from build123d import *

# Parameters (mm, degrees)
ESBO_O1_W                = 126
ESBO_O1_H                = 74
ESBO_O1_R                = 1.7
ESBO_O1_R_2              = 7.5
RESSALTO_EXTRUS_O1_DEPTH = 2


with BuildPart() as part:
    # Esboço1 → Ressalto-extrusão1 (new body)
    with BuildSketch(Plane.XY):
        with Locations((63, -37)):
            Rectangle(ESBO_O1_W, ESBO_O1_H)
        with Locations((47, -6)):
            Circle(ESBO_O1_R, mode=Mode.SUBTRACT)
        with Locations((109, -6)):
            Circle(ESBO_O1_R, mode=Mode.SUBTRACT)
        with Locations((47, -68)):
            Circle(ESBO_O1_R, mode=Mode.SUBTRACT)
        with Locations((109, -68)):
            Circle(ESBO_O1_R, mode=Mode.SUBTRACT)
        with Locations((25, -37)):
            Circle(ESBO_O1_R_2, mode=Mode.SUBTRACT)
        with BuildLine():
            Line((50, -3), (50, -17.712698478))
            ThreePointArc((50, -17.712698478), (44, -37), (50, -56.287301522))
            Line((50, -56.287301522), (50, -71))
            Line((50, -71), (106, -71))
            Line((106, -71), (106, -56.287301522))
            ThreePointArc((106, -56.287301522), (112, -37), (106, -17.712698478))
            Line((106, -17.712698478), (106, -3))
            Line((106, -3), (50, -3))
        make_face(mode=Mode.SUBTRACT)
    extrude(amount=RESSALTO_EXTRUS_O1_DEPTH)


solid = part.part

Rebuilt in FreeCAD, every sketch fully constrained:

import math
import FreeCAD as App
import Part
import Sketcher
from FreeCAD import Vector


def add_polygon(sketch, points):
    """Adds a closed chain of lines whose ends are joined by coincident constraints."""
    first, n = sketch.GeometryCount, len(points)
    for a, b in zip(points, points[1:] + points[:1]):
        sketch.addGeometry(Part.LineSegment(App.Vector(*a, 0), App.Vector(*b, 0)), False)
    for i in range(n):
        sketch.addConstraint(Sketcher.Constraint("Coincident", first + i, 2, first + (i + 1) % n, 1))

doc = App.newDocument("Part")
params = doc.addObject("Spreadsheet::Sheet", "Params")
for row, (alias, value) in enumerate([
    ("sketch1_diameter", "15 mm"),
    ("sketch1_radius", "34 mm"),
    ("sketch1_diameter2", "3.4 mm"),
    ("sketch1_width", "126 mm"),
    ("sketch1_width2", "56 mm"),
    ("pad1_length", "2 mm"),
], start=1):
    params.set(f"A{row}", alias)
    params.set(f"B{row}", "=" + value)
    params.setAlias(f"B{row}", alias)

body = doc.addObject("PartDesign::Body", "Body")

sketch1 = doc.addObject("Sketcher::SketchObject", "Sketch")
body.addObject(sketch1)
sketch1.AttachmentSupport = (doc.XY_Plane, [""])
sketch1.MapMode = "FlatFace"
add_polygon(sketch1, [(0, 0), (0, -74), (126, -74), (126, 0)])
sketch1.addGeometry(Part.Circle(Vector(47, -68, 0), Vector(0, 0, 1), 1.7), False)
sketch1.addGeometry(Part.Circle(Vector(109, -68, 0), Vector(0, 0, 1), 1.7), False)
sketch1.addGeometry(Part.Circle(Vector(25, -37, 0), Vector(0, 0, 1), 7.5), False)
sketch1.addGeometry(Part.Circle(Vector(47, -6, 0), Vector(0, 0, 1), 1.7), False)
sketch1.addGeometry(Part.LineSegment(Vector(50, -17.712698, 0), Vector(50, -3, 0)), False)
sketch1.addGeometry(Part.LineSegment(Vector(50, -3, 0), Vector(106, -3, 0)), False)
sketch1.addGeometry(Part.LineSegment(Vector(106, -3, 0), Vector(106, -17.712698, 0)), False)
sketch1.addGeometry(Part.ArcOfCircle(Part.Circle(Vector(78, -37, 0), Vector(0, 0, 1), 34), math.radians(-34.560322), math.radians(34.560322)), False)
sketch1.addGeometry(Part.LineSegment(Vector(106, -56.287302, 0), Vector(106, -71, 0)), False)
sketch1.addGeometry(Part.LineSegment(Vector(106, -71, 0), Vector(50, -71, 0)), False)
sketch1.addGeometry(Part.LineSegment(Vector(50, -71, 0), Vector(50, -56.287302, 0)), False)
sketch1.addGeometry(Part.ArcOfCircle(Part.Circle(Vector(78, -37, 0), Vector(0, 0, 1), 34), math.radians(145.439678), math.radians(214.560322)), False)
sketch1.addGeometry(Part.Circle(Vector(109, -6, 0), Vector(0, 0, 1), 1.7), False)
sketch1.addConstraint(Sketcher.Constraint("Coincident", 8, 2, 9, 1))
sketch1.addConstraint(Sketcher.Constraint("Coincident", 9, 2, 10, 1))
sketch1.addConstraint(Sketcher.Constraint("Coincident", 10, 2, 11, 2))
sketch1.addConstraint(Sketcher.Constraint("Coincident", 11, 1, 12, 1))
sketch1.addConstraint(Sketcher.Constraint("Coincident", 12, 2, 13, 1))
sketch1.addConstraint(Sketcher.Constraint("Coincident", 13, 2, 14, 1))
sketch1.addConstraint(Sketcher.Constraint("Coincident", 14, 2, 15, 2))
sketch1.addConstraint(Sketcher.Constraint("Coincident", 15, 1, 8, 1))
sketch1.addConstraint(Sketcher.Constraint("Vertical", 0))
sketch1.addConstraint(Sketcher.Constraint("Horizontal", 1))
sketch1.addConstraint(Sketcher.Constraint("Vertical", 2))
sketch1.addConstraint(Sketcher.Constraint("Horizontal", 3))
sketch1.addConstraint(Sketcher.Constraint("Vertical", 8))
sketch1.addConstraint(Sketcher.Constraint("Horizontal", 9))
sketch1.addConstraint(Sketcher.Constraint("Vertical", 10))
sketch1.addConstraint(Sketcher.Constraint("Vertical", 12))
sketch1.addConstraint(Sketcher.Constraint("Horizontal", 13))
sketch1.addConstraint(Sketcher.Constraint("Vertical", 14))
sketch1.addConstraint(Sketcher.Constraint("Coincident", 3, 2, -1, 1))
sketch1.addConstraint(Sketcher.Constraint("Coincident", 15, 3, 11, 3))
sketch1.addConstraint(Sketcher.Constraint("Equal", 4, 5))
sketch1.addConstraint(Sketcher.Constraint("Equal", 5, 7))
sketch1.addConstraint(Sketcher.Constraint("Equal", 11, 15))
sketch1.addConstraint(Sketcher.Constraint("Equal", 7, 16))
sketch1.addConstraint(Sketcher.Constraint("Horizontal", 4, 3, 5, 3))
sketch1.addConstraint(Sketcher.Constraint("Horizontal", 6, 3, 11, 3))
sketch1.addConstraint(Sketcher.Constraint("Horizontal", 7, 3, 16, 3))
sketch1.addConstraint(Sketcher.Constraint("Horizontal", 11, 1, 14, 2))
sketch1.addConstraint(Sketcher.Constraint("Horizontal", 10, 2, 15, 1))
sketch1.addConstraint(Sketcher.Constraint("Vertical", 4, 3, 7, 3))
sketch1.addConstraint(Sketcher.Constraint("Vertical", 5, 3, 16, 3))
sketch1.addConstraint(Sketcher.Constraint("Vertical", 10, 2, 11, 1))
sketch1.addConstraint(Sketcher.Constraint("Equal", 10, 12))
sketch1.addConstraint(Sketcher.Constraint("Diameter", 6, 15.0))
sketch1.addConstraint(Sketcher.Constraint("Radius", 11, 34.0))
sketch1.addConstraint(Sketcher.Constraint("Diameter", 4, 3.4))
sketch1.addConstraint(Sketcher.Constraint("DistanceX", 1, 1, 1, 2, 126.0))
sketch1.addConstraint(Sketcher.Constraint("DistanceX", 9, 1, 9, 2, 56.0))
sketch1.addConstraint(Sketcher.Constraint("DistanceY", 0, 2, 0, 1, 74.0))
sketch1.addConstraint(Sketcher.Constraint("DistanceX", -1, 1, 4, 3, 47.0))
sketch1.addConstraint(Sketcher.Constraint("DistanceY", 4, 3, -1, 1, 68.0))
sketch1.addConstraint(Sketcher.Constraint("DistanceX", -1, 1, 5, 3, 109.0))
sketch1.addConstraint(Sketcher.Constraint("DistanceX", -1, 1, 6, 3, 25.0))
sketch1.addConstraint(Sketcher.Constraint("DistanceY", 6, 3, -1, 1, 37.0))
sketch1.addConstraint(Sketcher.Constraint("DistanceY", 7, 3, -1, 1, 6.0))
sketch1.addConstraint(Sketcher.Constraint("DistanceX", -1, 1, 11, 3, 78.0))
sketch1.addConstraint(Sketcher.Constraint("DistanceY", 8, 2, -1, 1, 3.0))
sketch1.setExpression("Constraints[37]", "Params.sketch1_diameter")
sketch1.setExpression("Constraints[38]", "Params.sketch1_radius")
sketch1.setExpression("Constraints[39]", "Params.sketch1_diameter2")
sketch1.setExpression("Constraints[40]", "Params.sketch1_width")
sketch1.setExpression("Constraints[41]", "Params.sketch1_width2")
pad1 = doc.addObject("PartDesign::Pad", "Pad")
body.addObject(pad1)
pad1.Profile = sketch1
pad1.setExpression("Length", "Params.pad1_length")

doc.recompute()
